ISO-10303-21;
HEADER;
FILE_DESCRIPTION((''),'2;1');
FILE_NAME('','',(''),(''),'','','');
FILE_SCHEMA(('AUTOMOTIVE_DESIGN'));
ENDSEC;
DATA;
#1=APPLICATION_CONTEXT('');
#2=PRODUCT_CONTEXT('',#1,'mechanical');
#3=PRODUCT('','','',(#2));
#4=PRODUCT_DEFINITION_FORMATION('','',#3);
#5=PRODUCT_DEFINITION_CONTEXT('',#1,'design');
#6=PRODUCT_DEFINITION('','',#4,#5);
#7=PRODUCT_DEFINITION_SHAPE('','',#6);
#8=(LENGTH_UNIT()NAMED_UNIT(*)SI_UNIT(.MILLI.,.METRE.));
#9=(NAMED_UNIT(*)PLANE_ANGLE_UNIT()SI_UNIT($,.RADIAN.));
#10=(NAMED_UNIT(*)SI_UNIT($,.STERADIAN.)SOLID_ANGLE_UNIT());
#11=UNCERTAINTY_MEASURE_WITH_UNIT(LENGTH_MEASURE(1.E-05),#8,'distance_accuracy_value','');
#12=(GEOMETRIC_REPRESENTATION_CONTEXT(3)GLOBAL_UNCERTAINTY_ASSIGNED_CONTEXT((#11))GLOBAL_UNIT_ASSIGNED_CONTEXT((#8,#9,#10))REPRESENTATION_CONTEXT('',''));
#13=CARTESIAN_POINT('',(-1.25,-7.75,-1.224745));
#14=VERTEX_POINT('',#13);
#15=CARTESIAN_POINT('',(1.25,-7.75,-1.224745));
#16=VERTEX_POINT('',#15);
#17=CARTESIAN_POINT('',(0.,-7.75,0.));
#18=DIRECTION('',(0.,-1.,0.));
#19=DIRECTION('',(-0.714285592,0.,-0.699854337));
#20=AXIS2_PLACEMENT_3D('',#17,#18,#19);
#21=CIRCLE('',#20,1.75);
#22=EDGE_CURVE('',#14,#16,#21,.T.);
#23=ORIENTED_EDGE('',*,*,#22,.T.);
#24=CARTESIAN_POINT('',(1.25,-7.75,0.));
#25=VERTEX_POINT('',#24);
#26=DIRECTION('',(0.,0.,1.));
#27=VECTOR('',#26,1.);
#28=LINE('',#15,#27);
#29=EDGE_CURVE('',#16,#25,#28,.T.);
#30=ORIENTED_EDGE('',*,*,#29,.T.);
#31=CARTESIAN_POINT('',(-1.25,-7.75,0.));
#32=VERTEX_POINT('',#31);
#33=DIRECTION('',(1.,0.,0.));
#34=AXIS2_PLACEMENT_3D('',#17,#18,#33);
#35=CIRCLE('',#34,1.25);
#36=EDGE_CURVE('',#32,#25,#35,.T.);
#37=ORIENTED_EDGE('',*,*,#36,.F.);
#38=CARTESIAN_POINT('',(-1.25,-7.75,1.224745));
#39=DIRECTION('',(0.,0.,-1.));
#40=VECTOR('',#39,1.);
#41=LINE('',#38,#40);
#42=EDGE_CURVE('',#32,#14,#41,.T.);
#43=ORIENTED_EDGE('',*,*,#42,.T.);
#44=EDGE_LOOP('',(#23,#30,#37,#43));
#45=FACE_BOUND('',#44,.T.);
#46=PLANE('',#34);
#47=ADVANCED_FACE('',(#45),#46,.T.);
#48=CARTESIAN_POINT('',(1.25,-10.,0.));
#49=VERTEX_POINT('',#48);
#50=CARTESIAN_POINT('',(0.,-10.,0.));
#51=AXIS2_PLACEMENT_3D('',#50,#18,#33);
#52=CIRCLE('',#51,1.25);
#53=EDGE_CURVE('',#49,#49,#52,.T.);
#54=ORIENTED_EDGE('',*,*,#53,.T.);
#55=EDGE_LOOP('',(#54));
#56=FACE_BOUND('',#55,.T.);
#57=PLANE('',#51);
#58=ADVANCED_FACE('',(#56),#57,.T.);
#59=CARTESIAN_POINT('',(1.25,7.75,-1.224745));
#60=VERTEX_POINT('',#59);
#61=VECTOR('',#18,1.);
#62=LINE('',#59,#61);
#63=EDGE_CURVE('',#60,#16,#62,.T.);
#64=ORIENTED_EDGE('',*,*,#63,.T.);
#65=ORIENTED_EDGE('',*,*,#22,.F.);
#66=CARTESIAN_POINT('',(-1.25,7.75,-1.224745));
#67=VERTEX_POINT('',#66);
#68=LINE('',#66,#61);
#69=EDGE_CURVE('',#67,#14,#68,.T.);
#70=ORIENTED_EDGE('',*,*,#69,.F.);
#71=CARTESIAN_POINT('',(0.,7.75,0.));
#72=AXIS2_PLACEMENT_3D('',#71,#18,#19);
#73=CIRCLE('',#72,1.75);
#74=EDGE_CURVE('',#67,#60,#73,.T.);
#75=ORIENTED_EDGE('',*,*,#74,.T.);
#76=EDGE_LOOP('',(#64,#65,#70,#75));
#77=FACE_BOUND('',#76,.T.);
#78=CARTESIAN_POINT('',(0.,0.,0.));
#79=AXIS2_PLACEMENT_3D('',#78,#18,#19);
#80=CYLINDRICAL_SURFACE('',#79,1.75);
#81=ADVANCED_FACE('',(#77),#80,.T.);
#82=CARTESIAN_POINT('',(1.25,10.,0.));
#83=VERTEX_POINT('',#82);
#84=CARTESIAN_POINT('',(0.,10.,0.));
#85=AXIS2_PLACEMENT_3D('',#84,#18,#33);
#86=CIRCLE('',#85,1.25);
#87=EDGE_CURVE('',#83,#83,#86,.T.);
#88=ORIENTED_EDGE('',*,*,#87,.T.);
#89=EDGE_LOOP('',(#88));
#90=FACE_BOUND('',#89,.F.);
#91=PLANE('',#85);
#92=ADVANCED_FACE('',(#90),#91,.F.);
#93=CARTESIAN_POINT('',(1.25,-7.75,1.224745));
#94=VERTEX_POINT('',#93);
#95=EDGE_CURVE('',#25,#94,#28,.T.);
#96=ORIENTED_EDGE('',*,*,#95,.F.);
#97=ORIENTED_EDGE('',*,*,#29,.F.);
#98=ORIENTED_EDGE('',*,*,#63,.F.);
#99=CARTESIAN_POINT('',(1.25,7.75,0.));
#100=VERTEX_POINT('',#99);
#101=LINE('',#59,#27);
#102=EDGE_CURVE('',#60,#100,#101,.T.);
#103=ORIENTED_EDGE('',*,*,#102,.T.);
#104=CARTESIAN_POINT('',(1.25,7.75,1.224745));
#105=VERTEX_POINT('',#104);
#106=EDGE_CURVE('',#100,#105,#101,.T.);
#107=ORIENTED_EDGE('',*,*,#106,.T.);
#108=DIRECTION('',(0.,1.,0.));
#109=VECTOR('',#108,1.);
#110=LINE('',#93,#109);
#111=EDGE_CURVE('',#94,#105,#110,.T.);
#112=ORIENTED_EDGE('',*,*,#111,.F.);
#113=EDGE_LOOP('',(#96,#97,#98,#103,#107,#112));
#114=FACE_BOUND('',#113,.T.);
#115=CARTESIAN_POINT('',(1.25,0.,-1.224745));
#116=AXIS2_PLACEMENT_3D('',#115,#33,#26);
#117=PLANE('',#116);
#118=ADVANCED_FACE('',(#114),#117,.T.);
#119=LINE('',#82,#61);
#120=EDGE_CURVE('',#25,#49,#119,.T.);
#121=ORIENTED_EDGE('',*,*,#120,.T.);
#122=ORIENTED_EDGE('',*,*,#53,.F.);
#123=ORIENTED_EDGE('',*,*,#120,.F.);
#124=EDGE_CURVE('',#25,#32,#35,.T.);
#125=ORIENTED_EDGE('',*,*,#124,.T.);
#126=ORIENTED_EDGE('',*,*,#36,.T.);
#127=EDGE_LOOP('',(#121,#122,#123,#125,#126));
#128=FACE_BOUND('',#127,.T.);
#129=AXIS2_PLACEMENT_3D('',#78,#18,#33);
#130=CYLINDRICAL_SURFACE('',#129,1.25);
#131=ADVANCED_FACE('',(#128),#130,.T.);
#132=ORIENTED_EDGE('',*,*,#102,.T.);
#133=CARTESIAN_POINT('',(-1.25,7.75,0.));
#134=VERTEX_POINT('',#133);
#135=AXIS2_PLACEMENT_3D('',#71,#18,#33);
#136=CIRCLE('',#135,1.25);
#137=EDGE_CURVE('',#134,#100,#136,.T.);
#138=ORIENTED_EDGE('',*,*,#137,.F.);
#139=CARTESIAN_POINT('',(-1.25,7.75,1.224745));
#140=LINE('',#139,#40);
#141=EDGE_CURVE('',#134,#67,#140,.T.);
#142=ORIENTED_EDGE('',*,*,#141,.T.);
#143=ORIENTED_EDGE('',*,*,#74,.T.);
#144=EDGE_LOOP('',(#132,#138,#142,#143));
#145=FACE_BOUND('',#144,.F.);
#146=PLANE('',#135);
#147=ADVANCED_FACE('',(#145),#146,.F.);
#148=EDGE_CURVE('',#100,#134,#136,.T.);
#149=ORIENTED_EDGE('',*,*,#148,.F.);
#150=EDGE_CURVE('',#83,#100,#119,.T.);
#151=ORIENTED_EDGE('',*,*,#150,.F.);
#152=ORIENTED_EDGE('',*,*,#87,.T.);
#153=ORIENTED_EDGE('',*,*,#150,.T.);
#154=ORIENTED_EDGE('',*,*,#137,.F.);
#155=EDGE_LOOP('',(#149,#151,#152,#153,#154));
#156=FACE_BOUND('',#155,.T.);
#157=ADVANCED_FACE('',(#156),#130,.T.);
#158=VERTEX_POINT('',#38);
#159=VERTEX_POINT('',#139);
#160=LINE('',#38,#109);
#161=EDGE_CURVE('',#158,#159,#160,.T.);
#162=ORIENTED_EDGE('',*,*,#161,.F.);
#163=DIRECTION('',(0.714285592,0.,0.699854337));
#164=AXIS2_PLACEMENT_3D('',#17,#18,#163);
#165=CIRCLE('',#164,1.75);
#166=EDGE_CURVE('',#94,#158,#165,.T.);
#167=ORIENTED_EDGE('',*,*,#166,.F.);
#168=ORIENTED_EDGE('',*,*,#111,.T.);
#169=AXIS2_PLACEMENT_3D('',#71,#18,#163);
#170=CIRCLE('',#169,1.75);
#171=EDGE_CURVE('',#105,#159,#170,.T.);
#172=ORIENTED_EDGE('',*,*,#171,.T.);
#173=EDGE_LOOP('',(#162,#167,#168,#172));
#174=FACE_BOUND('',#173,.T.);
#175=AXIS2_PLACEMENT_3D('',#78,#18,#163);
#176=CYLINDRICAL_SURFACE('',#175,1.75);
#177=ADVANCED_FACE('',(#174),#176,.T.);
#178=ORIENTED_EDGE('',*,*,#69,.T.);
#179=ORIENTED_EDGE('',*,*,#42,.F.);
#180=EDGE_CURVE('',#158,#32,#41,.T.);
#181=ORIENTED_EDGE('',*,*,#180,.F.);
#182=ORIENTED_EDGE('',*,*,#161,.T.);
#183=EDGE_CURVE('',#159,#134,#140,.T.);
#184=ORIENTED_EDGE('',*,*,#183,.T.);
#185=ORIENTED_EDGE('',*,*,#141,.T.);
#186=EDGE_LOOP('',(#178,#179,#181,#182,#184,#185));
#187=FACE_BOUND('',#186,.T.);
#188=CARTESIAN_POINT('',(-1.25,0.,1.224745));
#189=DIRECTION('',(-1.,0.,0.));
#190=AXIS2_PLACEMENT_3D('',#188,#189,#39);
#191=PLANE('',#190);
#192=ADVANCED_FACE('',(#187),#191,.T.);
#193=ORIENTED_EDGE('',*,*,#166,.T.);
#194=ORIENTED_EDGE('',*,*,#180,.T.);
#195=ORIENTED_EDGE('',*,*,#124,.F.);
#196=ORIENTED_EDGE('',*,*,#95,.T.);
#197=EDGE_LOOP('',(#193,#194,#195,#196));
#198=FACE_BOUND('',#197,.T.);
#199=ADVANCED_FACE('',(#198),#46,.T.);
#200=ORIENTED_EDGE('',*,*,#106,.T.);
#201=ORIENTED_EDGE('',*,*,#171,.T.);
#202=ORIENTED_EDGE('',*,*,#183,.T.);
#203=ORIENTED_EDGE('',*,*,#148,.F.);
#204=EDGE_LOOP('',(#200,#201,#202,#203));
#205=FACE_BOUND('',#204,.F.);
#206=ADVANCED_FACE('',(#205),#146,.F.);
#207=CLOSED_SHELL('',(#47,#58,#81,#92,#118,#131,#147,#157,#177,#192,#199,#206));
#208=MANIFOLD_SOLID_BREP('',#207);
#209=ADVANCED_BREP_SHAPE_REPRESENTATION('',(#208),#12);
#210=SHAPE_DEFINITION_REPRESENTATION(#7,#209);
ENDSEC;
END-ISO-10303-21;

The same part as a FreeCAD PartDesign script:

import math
import FreeCAD as App
import Part
import Sketcher
Q = App.Units.Quantity

doc = App.newDocument("Part")
params = doc.addObject("Spreadsheet::Sheet", "Params")
for row, (alias, value) in enumerate([
    ("sketch1_radius", "1.75 mm"),
    ("pad1_length", "15.5 mm"),
    ("sketch2_diameter", "2.5 mm"),
    ("pad2_length", "20 mm"),
], start=1):
    params.set(f"A{row}", alias)
    params.set(f"B{row}", "=" + value)
    params.setAlias(f"B{row}", alias)

body = doc.addObject("PartDesign::Body", "Body")

sketch1 = body.newObject("Sketcher::SketchObject", "Sketch")
sketch1.AttachmentSupport = (doc.getObject("XZ_Plane"), [""])
sketch1.MapMode = "FlatFace"
sketch1.addGeometry(Part.LineSegment(App.Vector(-1.2, 1.2, 0), App.Vector(-1.2, -1.2, 0)), False)
sketch1.addGeometry(Part.ArcOfCircle(Part.Circle(App.Vector(0, 0, 0), App.Vector(0, 0, 1), 1.8), math.radians(-136), math.radians(-44)), False)
sketch1.addGeometry(Part.LineSegment(App.Vector(1.2, -1.2, 0), App.Vector(1.2, 1.2, 0)), False)
sketch1.addGeometry(Part.ArcOfCircle(Part.Circle(App.Vector(0, 0, 0), App.Vector(0, 0, 1), 1.8), math.radians(44), math.radians(136)), False)
sketch1.addConstraint(Sketcher.Constraint("Coincident", 0, 2, 1, 1))
sketch1.addConstraint(Sketcher.Constraint("Coincident", 1, 2, 2, 1))
sketch1.addConstraint(Sketcher.Constraint("Coincident", 2, 2, 3, 1))
sketch1.addConstraint(Sketcher.Constraint("Coincident", 3, 2, 0, 1))
sketch1.addConstraint(Sketcher.Constraint("Vertical", 0))
sketch1.addConstraint(Sketcher.Constraint("Vertical", 2))
sketch1.addConstraint(Sketcher.Constraint("Coincident", 1, 3, -1, 1))
sketch1.addConstraint(Sketcher.Constraint("Coincident", 3, 3, -1, 1))
sketch1.addConstraint(Sketcher.Constraint("Equal", 1, 3))
sketch1.addConstraint(Sketcher.Constraint("Horizontal", 0, 2, 1, 2))
sketch1.addConstraint(Sketcher.Constraint("Radius", 1, Q("1.75 mm")))
sketch1.addConstraint(Sketcher.Constraint("DistanceX", 0, 2, 1, 2, Q("2.5 mm")))
sketch1.setExpression("Constraints[10]", "Params.sketch1_radius")
pad1 = body.newObject("PartDesign::Pad", "Pad")
pad1.Profile = sketch1
pad1.setExpression("Length", "Params.pad1_length")
pad1.Midplane = True

sketch2 = body.newObject("Sketcher::SketchObject", "Sketch001")
sketch2.AttachmentSupport = (doc.getObject("XZ_Plane"), [""])
sketch2.MapMode = "FlatFace"
sketch2.addGeometry(Part.Circle(App.Vector(0, 0, 0), App.Vector(0, 0, 1), 1.2), False)
sketch2.addConstraint(Sketcher.Constraint("Coincident", 0, 3, -1, 1))
sketch2.addConstraint(Sketcher.Constraint("Diameter", 0, Q("2.5 mm")))
sketch2.setExpression("Constraints[1]", "Params.sketch2_diameter")
pad2 = body.newObject("PartDesign::Pad", "Pad001")
pad2.Profile = sketch2
pad2.setExpression("Length", "Params.pad2_length")
pad2.Midplane = True

doc.recompute()
